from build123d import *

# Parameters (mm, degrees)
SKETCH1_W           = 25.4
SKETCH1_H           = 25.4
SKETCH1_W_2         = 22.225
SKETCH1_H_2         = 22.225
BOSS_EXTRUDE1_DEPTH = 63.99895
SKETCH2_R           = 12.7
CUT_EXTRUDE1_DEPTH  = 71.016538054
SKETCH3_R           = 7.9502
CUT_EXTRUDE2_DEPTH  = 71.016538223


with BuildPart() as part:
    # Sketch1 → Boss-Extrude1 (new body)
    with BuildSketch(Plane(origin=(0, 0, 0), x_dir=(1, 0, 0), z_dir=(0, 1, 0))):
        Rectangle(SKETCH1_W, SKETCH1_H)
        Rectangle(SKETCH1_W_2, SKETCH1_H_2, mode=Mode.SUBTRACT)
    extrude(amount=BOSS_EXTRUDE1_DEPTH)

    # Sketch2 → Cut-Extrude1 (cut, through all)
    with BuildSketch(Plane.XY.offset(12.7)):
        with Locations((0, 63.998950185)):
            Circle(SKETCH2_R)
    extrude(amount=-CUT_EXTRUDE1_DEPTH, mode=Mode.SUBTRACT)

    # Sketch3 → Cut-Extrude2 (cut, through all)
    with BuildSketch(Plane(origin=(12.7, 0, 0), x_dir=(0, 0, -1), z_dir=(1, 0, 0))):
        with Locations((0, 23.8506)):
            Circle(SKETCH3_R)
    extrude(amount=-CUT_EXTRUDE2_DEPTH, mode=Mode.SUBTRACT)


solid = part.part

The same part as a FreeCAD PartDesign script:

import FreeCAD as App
import Part
import Sketcher
Q = App.Units.Quantity

doc = App.newDocument("Part")
body = doc.addObject("PartDesign::Body", "Body")

sketch1 = body.newObject("Sketcher::SketchObject", "Sketch")
sketch1.AttachmentSupport = (doc.getObject("XZ_Plane"), [""])
sketch1.MapMode = "FlatFace"
sketch1.addGeometry(Part.LineSegment(App.Vector(-13, -13, 0), App.Vector(-13, 13, 0)), False)
sketch1.addGeometry(Part.LineSegment(App.Vector(-13, 13, 0), App.Vector(13, 13, 0)), False)
sketch1.addGeometry(Part.LineSegment(App.Vector(13, 13, 0), App.Vector(13, -13, 0)), False)
sketch1.addGeometry(Part.LineSegment(App.Vector(13, -13, 0), App.Vector(-13, -13, 0)), False)
sketch1.addGeometry(Part.LineSegment(App.Vector(11, 11, 0), App.Vector(-11, 11, 0)), False)
sketch1.addGeometry(Part.LineSegment(App.Vector(-11, 11, 0), App.Vector(-11, -11, 0)), False)
sketch1.addGeometry(Part.LineSegment(App.Vector(-11, -11, 0), App.Vector(11, -11, 0)), False)
sketch1.addGeometry(Part.LineSegment(App.Vector(11, -11, 0), App.Vector(11, 11, 0)), False)
sketch1.addConstraint(Sketcher.Constraint("Coincident", 0, 2, 1, 1))
sketch1.addConstraint(Sketcher.Constraint("Coincident", 1, 2, 2, 1))
sketch1.addConstraint(Sketcher.Constraint("Coincident", 2, 2, 3, 1))
sketch1.addConstraint(Sketcher.Constraint("Coincident", 3, 2, 0, 1))
sketch1.addConstraint(Sketcher.Constraint("Coincident", 4, 2, 5, 1))
sketch1.addConstraint(Sketcher.Constraint("Coincident", 5, 2, 6, 1))
sketch1.addConstraint(Sketcher.Constraint("Coincident", 6, 2, 7, 1))
sketch1.addConstraint(Sketcher.Constraint("Coincident", 7, 2, 4, 1))
sketch1.addConstraint(Sketcher.Constraint("Vertical", 0))
sketch1.addConstraint(Sketcher.Constraint("Horizontal", 1))
sketch1.addConstraint(Sketcher.Constraint("Vertical", 2))
sketch1.addConstraint(Sketcher.Constraint("Horizontal", 3))
sketch1.addConstraint(Sketcher.Constraint("Horizontal", 4))
sketch1.addConstraint(Sketcher.Constraint("Vertical", 5))
sketch1.addConstraint(Sketcher.Constraint("Horizontal", 6))
sketch1.addConstraint(Sketcher.Constraint("Vertical", 7))
sketch1.addConstraint(Sketcher.Constraint("Symmetric", 0, 2, 2, 2, -1, 1))
sketch1.addConstraint(Sketcher.Constraint("Symmetric", 4, 2, 6, 2, -1, 1))
sketch1.addConstraint(Sketcher.Constraint("Equal", 3, 0))
sketch1.addConstraint(Sketcher.Constraint("Equal", 6, 5))
sketch1.addConstraint(Sketcher.Constraint("DistanceX", 1, 1, 1, 2, Q("1 in")))
sketch1.addConstraint(Sketcher.Constraint("DistanceX", 4, 2, 4, 1, Q("0.875 in")))
pad1 = body.newObject("PartDesign::Pad", "Pad")
pad1.Profile = sketch1
pad1.Length = 63.99895
pad1.Reversed = True

sketch2 = body.newObject("Sketcher::SketchObject", "Sketch001")
sketch2.AttachmentSupport = (doc.getObject("XY_Plane"), [""])
sketch2.MapMode = "FlatFace"
sketch2.AttachmentOffset = App.Placement(App.Vector(0, 0, 0.5 * 25.4), App.Rotation())
sketch2.addGeometry(Part.Circle(App.Vector(0, 64, 0), App.Vector(0, 0, 1), 13), False)
sketch2.addConstraint(Sketcher.Constraint("PointOnObject", 0, 3, -2))
sketch2.addConstraint(Sketcher.Constraint("Diameter", 0, Q("1 in")))
sketch2.addConstraint(Sketcher.Constraint("DistanceY", -1, 1, 0, 3, Q("63.99895 mm")))
pocket1 = body.newObject("PartDesign::Pocket", "Pocket")
pocket1.Profile = sketch2
pocket1.Type = "ThroughAll"

sketch3 = body.newObject("Sketcher::SketchObject", "Sketch002")
sketch3.AttachmentSupport = (doc.getObject("YZ_Plane"), [""])
sketch3.MapMode = "FlatFace"
sketch3.AttachmentOffset = App.Placement(App.Vector(0, 0, 0.5 * 25.4), App.Rotation())
sketch3.addGeometry(Part.Circle(App.Vector(24, 0, 0), App.Vector(0, 0, 1), 8), False)
sketch3.addConstraint(Sketcher.Constraint("PointOnObject", 0, 3, -1))
sketch3.addConstraint(Sketcher.Constraint("Diameter", 0, Q("0.626 in")))
sketch3.addConstraint(Sketcher.Constraint("DistanceX", -1, 1, 0, 3, Q("0.939 in")))
pocket2 = body.newObject("PartDesign::Pocket", "Pocket001")
pocket2.Profile = sketch3
pocket2.Type = "ThroughAll"

doc.recompute()
